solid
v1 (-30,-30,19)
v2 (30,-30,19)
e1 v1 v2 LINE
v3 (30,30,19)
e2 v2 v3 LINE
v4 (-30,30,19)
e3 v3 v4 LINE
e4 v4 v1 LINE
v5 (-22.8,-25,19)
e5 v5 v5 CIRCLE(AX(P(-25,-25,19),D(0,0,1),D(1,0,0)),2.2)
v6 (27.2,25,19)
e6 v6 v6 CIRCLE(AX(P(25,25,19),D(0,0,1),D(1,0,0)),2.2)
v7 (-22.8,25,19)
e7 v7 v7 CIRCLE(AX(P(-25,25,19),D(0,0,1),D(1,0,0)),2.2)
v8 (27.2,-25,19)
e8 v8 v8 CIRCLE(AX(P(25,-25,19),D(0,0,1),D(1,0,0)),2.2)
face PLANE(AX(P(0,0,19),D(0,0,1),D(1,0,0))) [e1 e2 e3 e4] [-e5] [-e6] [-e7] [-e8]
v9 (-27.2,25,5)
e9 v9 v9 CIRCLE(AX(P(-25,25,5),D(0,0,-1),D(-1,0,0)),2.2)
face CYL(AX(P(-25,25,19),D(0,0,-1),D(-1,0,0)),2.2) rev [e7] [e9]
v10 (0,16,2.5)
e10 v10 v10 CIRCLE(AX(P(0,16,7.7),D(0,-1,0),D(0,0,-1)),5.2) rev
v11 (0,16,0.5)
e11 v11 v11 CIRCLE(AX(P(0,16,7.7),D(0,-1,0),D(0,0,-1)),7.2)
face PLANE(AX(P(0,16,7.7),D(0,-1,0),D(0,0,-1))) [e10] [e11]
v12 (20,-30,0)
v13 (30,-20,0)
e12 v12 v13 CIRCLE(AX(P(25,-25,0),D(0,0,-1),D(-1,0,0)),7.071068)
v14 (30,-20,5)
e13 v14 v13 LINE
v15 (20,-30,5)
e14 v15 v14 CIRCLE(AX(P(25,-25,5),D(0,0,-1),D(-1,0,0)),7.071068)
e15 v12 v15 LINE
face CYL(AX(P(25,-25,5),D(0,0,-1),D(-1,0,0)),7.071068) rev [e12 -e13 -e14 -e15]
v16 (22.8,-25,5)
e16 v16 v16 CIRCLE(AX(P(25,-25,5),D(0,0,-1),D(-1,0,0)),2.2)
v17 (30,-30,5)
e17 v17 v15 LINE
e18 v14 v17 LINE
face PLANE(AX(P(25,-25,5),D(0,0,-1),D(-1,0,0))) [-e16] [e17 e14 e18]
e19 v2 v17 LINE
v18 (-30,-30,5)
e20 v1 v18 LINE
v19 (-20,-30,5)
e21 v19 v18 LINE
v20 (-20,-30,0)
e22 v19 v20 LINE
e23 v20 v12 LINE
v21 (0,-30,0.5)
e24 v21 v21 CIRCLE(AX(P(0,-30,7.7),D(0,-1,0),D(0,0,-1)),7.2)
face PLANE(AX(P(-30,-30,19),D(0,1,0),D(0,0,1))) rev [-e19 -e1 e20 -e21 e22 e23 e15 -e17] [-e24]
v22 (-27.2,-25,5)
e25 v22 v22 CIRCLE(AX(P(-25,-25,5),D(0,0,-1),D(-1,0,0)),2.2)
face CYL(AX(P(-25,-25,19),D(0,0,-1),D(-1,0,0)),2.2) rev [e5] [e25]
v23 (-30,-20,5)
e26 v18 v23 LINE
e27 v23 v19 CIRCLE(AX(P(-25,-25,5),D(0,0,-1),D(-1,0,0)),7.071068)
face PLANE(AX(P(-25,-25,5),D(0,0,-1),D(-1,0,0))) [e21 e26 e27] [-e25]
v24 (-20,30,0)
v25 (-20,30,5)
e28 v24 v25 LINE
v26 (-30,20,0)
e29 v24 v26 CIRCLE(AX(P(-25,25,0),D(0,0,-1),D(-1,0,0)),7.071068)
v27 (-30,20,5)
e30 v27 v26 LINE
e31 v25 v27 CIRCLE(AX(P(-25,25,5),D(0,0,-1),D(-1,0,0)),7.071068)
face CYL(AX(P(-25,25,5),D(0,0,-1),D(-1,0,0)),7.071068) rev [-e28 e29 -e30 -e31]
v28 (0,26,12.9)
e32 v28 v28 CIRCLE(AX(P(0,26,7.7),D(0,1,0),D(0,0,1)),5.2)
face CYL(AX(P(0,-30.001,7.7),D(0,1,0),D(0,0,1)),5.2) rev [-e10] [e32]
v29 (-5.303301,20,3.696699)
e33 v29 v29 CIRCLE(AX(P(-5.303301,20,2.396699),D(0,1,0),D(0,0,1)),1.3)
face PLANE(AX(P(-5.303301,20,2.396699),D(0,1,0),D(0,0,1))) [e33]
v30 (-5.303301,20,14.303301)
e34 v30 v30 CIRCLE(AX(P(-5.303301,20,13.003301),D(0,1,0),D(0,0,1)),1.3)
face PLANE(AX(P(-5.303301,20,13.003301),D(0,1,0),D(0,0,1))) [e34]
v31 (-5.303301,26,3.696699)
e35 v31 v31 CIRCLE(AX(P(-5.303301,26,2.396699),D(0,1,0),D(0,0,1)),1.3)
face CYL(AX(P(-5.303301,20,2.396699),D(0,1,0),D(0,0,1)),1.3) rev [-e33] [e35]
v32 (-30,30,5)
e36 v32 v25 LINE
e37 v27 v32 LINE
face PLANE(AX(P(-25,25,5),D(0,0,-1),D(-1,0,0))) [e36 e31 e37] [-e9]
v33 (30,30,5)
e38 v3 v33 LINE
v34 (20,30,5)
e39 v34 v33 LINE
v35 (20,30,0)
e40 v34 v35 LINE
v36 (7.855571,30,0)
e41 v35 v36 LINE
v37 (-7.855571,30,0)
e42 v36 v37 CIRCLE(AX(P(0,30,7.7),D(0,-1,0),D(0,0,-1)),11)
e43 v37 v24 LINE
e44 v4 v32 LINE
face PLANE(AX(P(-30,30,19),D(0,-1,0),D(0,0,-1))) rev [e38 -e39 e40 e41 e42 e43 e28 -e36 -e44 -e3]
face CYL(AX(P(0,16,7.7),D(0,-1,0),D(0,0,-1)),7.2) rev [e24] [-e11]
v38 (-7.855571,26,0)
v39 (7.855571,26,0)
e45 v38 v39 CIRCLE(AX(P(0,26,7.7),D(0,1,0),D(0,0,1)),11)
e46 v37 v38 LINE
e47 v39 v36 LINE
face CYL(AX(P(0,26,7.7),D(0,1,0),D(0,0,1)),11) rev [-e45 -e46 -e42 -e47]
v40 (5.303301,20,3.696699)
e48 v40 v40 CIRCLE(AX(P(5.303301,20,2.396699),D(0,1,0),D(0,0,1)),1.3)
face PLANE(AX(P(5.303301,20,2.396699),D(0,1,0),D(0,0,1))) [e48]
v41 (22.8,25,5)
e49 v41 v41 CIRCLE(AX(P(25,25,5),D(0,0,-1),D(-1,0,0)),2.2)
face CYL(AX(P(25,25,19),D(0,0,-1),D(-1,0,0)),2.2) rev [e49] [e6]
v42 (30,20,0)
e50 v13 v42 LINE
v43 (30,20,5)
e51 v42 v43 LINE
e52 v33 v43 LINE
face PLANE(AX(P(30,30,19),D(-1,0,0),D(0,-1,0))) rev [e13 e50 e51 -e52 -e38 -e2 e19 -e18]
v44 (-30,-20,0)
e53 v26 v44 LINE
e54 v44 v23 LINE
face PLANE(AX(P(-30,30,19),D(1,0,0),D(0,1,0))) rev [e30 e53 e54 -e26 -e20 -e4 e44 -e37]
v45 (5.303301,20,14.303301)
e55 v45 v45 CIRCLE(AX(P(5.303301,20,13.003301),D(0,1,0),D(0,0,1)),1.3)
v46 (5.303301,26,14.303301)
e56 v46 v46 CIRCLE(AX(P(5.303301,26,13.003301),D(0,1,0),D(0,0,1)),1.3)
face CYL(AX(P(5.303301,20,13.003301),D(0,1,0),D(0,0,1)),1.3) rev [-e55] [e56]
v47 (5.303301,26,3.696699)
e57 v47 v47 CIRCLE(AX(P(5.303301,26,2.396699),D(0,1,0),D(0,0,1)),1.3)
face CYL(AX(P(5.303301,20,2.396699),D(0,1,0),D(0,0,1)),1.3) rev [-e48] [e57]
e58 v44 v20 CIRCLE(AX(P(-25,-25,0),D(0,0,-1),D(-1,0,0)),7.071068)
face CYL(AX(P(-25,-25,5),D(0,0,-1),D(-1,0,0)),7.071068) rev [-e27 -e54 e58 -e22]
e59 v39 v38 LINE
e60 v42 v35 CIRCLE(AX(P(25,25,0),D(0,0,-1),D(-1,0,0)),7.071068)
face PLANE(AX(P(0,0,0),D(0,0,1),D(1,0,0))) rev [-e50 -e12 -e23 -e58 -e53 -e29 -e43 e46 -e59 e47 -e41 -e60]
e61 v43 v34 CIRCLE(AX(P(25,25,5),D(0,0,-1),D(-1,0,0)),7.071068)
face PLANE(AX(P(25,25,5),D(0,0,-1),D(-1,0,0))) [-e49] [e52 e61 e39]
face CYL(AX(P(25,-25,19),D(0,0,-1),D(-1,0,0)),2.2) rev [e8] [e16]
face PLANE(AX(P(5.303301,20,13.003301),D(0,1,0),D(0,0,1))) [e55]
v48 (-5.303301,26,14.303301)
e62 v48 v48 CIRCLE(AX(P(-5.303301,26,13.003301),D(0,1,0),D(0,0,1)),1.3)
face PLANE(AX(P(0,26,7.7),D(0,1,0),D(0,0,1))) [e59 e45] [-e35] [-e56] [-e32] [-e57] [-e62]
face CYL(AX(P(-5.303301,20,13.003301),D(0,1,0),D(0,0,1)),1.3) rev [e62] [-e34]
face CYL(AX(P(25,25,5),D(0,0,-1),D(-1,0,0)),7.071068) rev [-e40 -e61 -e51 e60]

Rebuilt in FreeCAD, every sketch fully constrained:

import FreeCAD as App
import Part
import Sketcher

doc = App.newDocument("Part")
body = doc.addObject("PartDesign::Body", "Body")

sketch1 = body.newObject("Sketcher::SketchObject", "Sketch")
sketch1.AttachmentSupport = (doc.getObject("XY_Plane"), [""])
sketch1.MapMode = "FlatFace"
sketch1.addGeometry(Part.LineSegment(App.Vector(-30, 30, 0), App.Vector(-30, -30, 0)), False)
sketch1.addGeometry(Part.LineSegment(App.Vector(-30, -30, 0), App.Vector(30, -30, 0)), False)
sketch1.addGeometry(Part.LineSegment(App.Vector(30, -30, 0), App.Vector(30, 30, 0)), False)
sketch1.addGeometry(Part.LineSegment(App.Vector(30, 30, 0), App.Vector(-30, 30, 0)), False)
sketch1.addGeometry(Part.Circle(App.Vector(-25, -25, 0), App.Vector(0, 0, 1), 2.2), False)
sketch1.addGeometry(Part.Circle(App.Vector(25, -25, 0), App.Vector(0, 0, 1), 2.2), False)
sketch1.addGeometry(Part.Circle(App.Vector(-25, 25, 0), App.Vector(0, 0, 1), 2.2), False)
sketch1.addGeometry(Part.Circle(App.Vector(25, 25, 0), App.Vector(0, 0, 1), 2.2), False)
sketch1.addConstraint(Sketcher.Constraint("Coincident", 0, 2, 1, 1))
sketch1.addConstraint(Sketcher.Constraint("Coincident", 1, 2, 2, 1))
sketch1.addConstraint(Sketcher.Constraint("Coincident", 2, 2, 3, 1))
sketch1.addConstraint(Sketcher.Constraint("Coincident", 3, 2, 0, 1))
sketch1.addConstraint(Sketcher.Constraint("Vertical", 0))
sketch1.addConstraint(Sketcher.Constraint("Horizontal", 1))
sketch1.addConstraint(Sketcher.Constraint("Vertical", 2))
sketch1.addConstraint(Sketcher.Constraint("Horizontal", 3))
sketch1.addConstraint(Sketcher.Constraint("Equal", 4, 5))
sketch1.addConstraint(Sketcher.Constraint("Equal", 5, 6))
sketch1.addConstraint(Sketcher.Constraint("Equal", 6, 7))
sketch1.addConstraint(Sketcher.Constraint("Symmetric", 5, 3, 6, 3, -1, 1))
sketch1.addConstraint(Sketcher.Constraint("Symmetric", 4, 3, 7, 3, -1, 1))
sketch1.addConstraint(Sketcher.Constraint("Symmetric", 0, 2, 2, 2, -1, 1))
sketch1.addConstraint(Sketcher.Constraint("Symmetric", 4, 3, 5, 3, -2))
sketch1.addConstraint(Sketcher.Constraint("Equal", 3, 0))
sketch1.addConstraint(Sketcher.Constraint("Diameter", 4, 4.4))
sketch1.addConstraint(Sketcher.Constraint("DistanceX", 1, 1, 1, 2, 60.0))
sketch1.addConstraint(Sketcher.Constraint("DistanceX", 4, 3, -1, 1, 25.0))
sketch1.addConstraint(Sketcher.Constraint("DistanceY", 4, 3, -1, 1, 25.0))
pad1 = body.newObject("PartDesign::Pad", "Pad")
pad1.Profile = sketch1
pad1.Length = 19

sketch2 = body.newObject("Sketcher::SketchObject", "Sketch001")
sketch2.AttachmentSupport = (doc.getObject("XZ_Plane"), [""])
sketch2.MapMode = "FlatFace"
sketch2.AttachmentOffset = App.Placement(App.Vector(0, 0, -30), App.Rotation())
sketch2.addGeometry(Part.Circle(App.Vector(0, 8, 0), App.Vector(0, 0, 1), 11), False)
sketch2.addConstraint(Sketcher.Constraint("PointOnObject", 0, 3, -2))
sketch2.addConstraint(Sketcher.Constraint("Diameter", 0, 22.0))
sketch2.addConstraint(Sketcher.Constraint("DistanceY", -1, 1, 0, 3, 7.7))
pocket1 = body.newObject("PartDesign::Pocket", "Pocket")
pocket1.Profile = sketch2
pocket1.Length = 4
pocket1.Reversed = True

sketch3 = body.newObject("Sketcher::SketchObject", "Sketch002")
sketch3.AttachmentSupport = (doc.getObject("XZ_Plane"), [""])
sketch3.MapMode = "FlatFace"
sketch3.AttachmentOffset = App.Placement(App.Vector(0, 0, -26), App.Rotation())
sketch3.addGeometry(Part.Circle(App.Vector(0, 8, 0), App.Vector(0, 0, 1), 5), False)
sketch3.addConstraint(Sketcher.Constraint("PointOnObject", 0, 3, -2))
sketch3.addConstraint(Sketcher.Constraint("Diameter", 0, 10.4))
sketch3.addConstraint(Sketcher.Constraint("DistanceY", -1, 1, 0, 3, 7.7))
pocket2 = body.newObject("PartDesign::Pocket", "Pocket001")
pocket2.Profile = sketch3
pocket2.Type = "UpToFirst"
pocket2.Reversed = True

sketch4 = body.newObject("Sketcher::SketchObject", "Sketch003")
sketch4.AttachmentSupport = (doc.getObject("XZ_Plane"), [""])
sketch4.MapMode = "FlatFace"
sketch4.AttachmentOffset = App.Placement(App.Vector(0, 0, 30), App.Rotation())
sketch4.addGeometry(Part.Circle(App.Vector(0, 8, 0), App.Vector(0, 0, 1), 7), False)
sketch4.addConstraint(Sketcher.Constraint("PointOnObject", 0, 3, -2))
sketch4.addConstraint(Sketcher.Constraint("Diameter", 0, 14.4))
sketch4.addConstraint(Sketcher.Constraint("DistanceY", -1, 1, 0, 3, 7.7))
pocket3 = body.newObject("PartDesign::Pocket", "Pocket002")
pocket3.Profile = sketch4
pocket3.Length = 46

sketch5 = body.newObject("Sketcher::SketchObject", "Sketch004")
sketch5.AttachmentSupport = (doc.getObject("XZ_Plane"), [""])
sketch5.MapMode = "FlatFace"
sketch5.AttachmentOffset = App.Placement(App.Vector(0, 0, -26), App.Rotation())
sketch5.addGeometry(Part.Circle(App.Vector(-5.3, 2.4, 0), App.Vector(0, 0, 1), 1.3), False)
sketch5.addGeometry(Part.Circle(App.Vector(5.3, 2.4, 0), App.Vector(0, 0, 1), 1.3), False)
sketch5.addGeometry(Part.Circle(App.Vector(5.3, 13, 0), App.Vector(0, 0, 1), 1.3), False)
sketch5.addGeometry(Part.Circle(App.Vector(-5.3, 13, 0), App.Vector(0, 0, 1), 1.3), False)
sketch5.addConstraint(Sketcher.Constraint("Equal", 0, 1))
sketch5.addConstraint(Sketcher.Constraint("Equal", 1, 2))
sketch5.addConstraint(Sketcher.Constraint("Equal", 2, 3))
sketch5.addConstraint(Sketcher.Constraint("Symmetric", 0, 3, 1, 3, -2))
sketch5.addConstraint(Sketcher.Constraint("Symmetric", 2, 3, 3, 3, -2))
sketch5.addConstraint(Sketcher.Constraint("Vertical", 1, 3, 2, 3))
sketch5.addConstraint(Sketcher.Constraint("Diameter", 0, 2.6))
sketch5.addConstraint(Sketcher.Constraint("DistanceX", 0, 3, -1, 1, 5.303301))
sketch5.addConstraint(Sketcher.Constraint("DistanceY", -1, 1, 0, 3, 2.396699))
sketch5.addConstraint(Sketcher.Constraint("DistanceY", -1, 1, 2, 3, 13.003301))
pocket4 = body.newObject("PartDesign::Pocket", "Pocket003")
pocket4.Profile = sketch5
pocket4.Length = 6
pocket4.Reversed = True

sketch6 = body.newObject("Sketcher::SketchObject", "Sketch005")
sketch6.AttachmentSupport = (doc.getObject("XY_Plane"), [""])
sketch6.MapMode = "FlatFace"
sketch6.addGeometry(Part.Circle(App.Vector(25, 25, 0), App.Vector(0, 0, 1), 7), False)
sketch6.addGeometry(Part.Circle(App.Vector(-25, 25, 0), App.Vector(0, 0, 1), 7), False)
sketch6.addGeometry(Part.Circle(App.Vector(-25, -25, 0), App.Vector(0, 0, 1), 7), False)
sketch6.addGeometry(Part.Circle(App.Vector(25, -25, 0), App.Vector(0, 0, 1), 7), False)
sketch6.addConstraint(Sketcher.Constraint("Equal", 0, 1))
sketch6.addConstraint(Sketcher.Constraint("Equal", 1, 2))
sketch6.addConstraint(Sketcher.Constraint("Equal", 2, 3))
sketch6.addConstraint(Sketcher.Constraint("Symmetric", 0, 3, 2, 3, -1, 1))
sketch6.addConstraint(Sketcher.Constraint("Symmetric", 1, 3, 3, 3, -1, 1))
sketch6.addConstraint(Sketcher.Constraint("Symmetric", 0, 3, 1, 3, -2))
sketch6.addConstraint(Sketcher.Constraint("DistanceX", -1, 1, 0, 3, 25.0))
sketch6.addConstraint(Sketcher.Constraint("DistanceY", -1, 1, 0, 3, 25.0))
sketch6.addConstraint(Sketcher.Constraint("Diameter", 0, 14.142136))
pocket5 = body.newObject("PartDesign::Pocket", "Pocket004")
pocket5.Profile = sketch6
pocket5.Length = 5
pocket5.Reversed = True

doc.recompute()
